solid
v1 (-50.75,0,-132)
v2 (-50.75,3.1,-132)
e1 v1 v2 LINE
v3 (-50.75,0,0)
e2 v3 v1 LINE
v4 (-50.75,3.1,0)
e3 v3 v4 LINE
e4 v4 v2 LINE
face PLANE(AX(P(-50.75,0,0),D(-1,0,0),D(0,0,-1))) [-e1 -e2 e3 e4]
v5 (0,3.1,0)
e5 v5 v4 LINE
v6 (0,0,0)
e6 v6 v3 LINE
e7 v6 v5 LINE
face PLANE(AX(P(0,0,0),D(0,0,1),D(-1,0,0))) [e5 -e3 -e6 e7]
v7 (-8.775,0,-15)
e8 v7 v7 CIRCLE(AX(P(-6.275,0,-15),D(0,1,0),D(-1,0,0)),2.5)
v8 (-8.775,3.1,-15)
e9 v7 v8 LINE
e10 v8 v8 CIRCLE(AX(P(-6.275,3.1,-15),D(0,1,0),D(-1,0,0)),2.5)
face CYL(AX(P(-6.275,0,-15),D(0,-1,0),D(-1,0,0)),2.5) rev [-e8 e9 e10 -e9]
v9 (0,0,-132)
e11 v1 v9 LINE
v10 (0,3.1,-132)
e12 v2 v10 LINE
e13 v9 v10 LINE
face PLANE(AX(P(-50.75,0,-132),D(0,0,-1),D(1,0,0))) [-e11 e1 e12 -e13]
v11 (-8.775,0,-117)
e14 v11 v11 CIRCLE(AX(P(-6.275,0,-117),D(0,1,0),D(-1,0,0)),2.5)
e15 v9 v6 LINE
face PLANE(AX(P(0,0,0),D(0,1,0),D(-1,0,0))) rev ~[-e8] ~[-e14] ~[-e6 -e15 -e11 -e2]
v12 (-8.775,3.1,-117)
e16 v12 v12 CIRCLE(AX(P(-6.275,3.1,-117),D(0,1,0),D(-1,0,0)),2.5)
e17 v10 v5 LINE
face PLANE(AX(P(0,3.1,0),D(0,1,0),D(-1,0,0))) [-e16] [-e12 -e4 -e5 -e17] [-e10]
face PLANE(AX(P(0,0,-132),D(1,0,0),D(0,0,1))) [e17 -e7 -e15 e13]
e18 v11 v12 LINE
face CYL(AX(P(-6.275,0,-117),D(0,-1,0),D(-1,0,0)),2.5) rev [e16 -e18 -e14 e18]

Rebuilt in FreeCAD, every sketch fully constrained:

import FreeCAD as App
import Part
import Sketcher

V = App.Vector

doc = App.newDocument("Part")
body = doc.addObject("PartDesign::Body", "Body")

sketch1 = body.newObject("Sketcher::SketchObject", "Sketch")
sketch1.AttachmentSupport = (doc.getObject("XZ_Plane"), [""])
sketch1.MapMode = "FlatFace"
sketch1.addGeometry([
    Part.LineSegment(V(-50.8, 0, 0), V(0, 0, 0)),
    Part.LineSegment(V(0, 0, 0), V(0, -132, 0)),
    Part.LineSegment(V(0, -132, 0), V(-50.8, -132, 0)),
    Part.LineSegment(V(-50.8, -132, 0), V(-50.8, 0, 0)),
    Part.Circle(V(-6.3, -117, 0), V(0, 0, 1), 2.5),
    Part.Circle(V(-6.3, -15, 0), V(0, 0, 1), 2.5),
], False)
sketch1.addConstraint([
    Sketcher.Constraint("Coincident", 0, 2, 1, 1),
    Sketcher.Constraint("Coincident", 1, 2, 2, 1),
    Sketcher.Constraint("Coincident", 2, 2, 3, 1),
    Sketcher.Constraint("Coincident", 3, 2, 0, 1),
    Sketcher.Constraint("Horizontal", 0),
    Sketcher.Constraint("Vertical", 1),
    Sketcher.Constraint("Horizontal", 2),
    Sketcher.Constraint("Vertical", 3),
    Sketcher.Constraint("Coincident", 0, 2, -1, 1),
    Sketcher.Constraint("Equal", 4, 5),
    Sketcher.Constraint("Vertical", 4, 3, 5, 3),
    Sketcher.Constraint("Diameter", 4, 5.0),
    Sketcher.Constraint("DistanceY", 1, 2, 1, 1, 132.0),
    Sketcher.Constraint("DistanceY", 5, 3, -1, 1, 15.0),
    Sketcher.Constraint("DistanceY", 1, 2, 4, 3, 15.0),
    Sketcher.Constraint("DistanceX", 0, 1, 0, 2, 50.75),
    Sketcher.Constraint("DistanceX", 4, 3, -1, 1, 6.275),
])
pad1 = body.newObject("PartDesign::Pad", "Pad")
pad1.Profile = sketch1
pad1.Length = 3.1
pad1.Reversed = True

doc.recompute()
